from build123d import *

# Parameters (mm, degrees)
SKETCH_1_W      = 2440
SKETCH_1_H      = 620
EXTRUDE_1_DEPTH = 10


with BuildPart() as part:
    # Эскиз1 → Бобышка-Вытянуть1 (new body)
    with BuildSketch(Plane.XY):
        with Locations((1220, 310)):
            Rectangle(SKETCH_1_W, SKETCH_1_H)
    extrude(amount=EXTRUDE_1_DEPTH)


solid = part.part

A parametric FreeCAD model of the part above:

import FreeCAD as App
import Part
import Sketcher

V = App.Vector

doc = App.newDocument("Part")
params = doc.addObject("Spreadsheet::Sheet", "Params")
for row, (alias, value) in enumerate([
    ("sketch1_width", "2440 mm"),
    ("sketch1_height", "620 mm"),
    ("pad1_length", "10 mm"),
], start=1):
    params.set(f"A{row}", alias)
    params.set(f"B{row}", "=" + value)
    params.setAlias(f"B{row}", alias)

body = doc.addObject("PartDesign::Body", "Body")

# Sketch on XY plane
sketch1 = doc.addObject("Sketcher::SketchObject", "Sketch")
body.addObject(sketch1)
sketch1.AttachmentSupport = (doc.XY_Plane, [""])
sketch1.MapMode = "FlatFace"
sketch1.addGeometry([
    Part.LineSegment(V(0, 620, 0), V(0, 0, 0)),
    Part.LineSegment(V(0, 0, 0), V(2440, 0, 0)),
    Part.LineSegment(V(2440, 0, 0), V(2440, 620, 0)),
    Part.LineSegment(V(2440, 620, 0), V(0, 620, 0)),
], False)
sketch1.addConstraint([
    Sketcher.Constraint("Coincident", 0, 2, 1, 1),
    Sketcher.Constraint("Coincident", 1, 2, 2, 1),
    Sketcher.Constraint("Coincident", 2, 2, 3, 1),
    Sketcher.Constraint("Coincident", 3, 2, 0, 1),
    Sketcher.Constraint("Vertical", 0),
    Sketcher.Constraint("Horizontal", 1),
    Sketcher.Constraint("Vertical", 2),
    Sketcher.Constraint("Horizontal", 3),
    Sketcher.Constraint("Coincident", 0, 2, -1, 1),
    Sketcher.Constraint("DistanceX", 1, 1, 1, 2, 2440.0),
    Sketcher.Constraint("DistanceY", 0, 2, 0, 1, 620.0),
])
sketch1.setExpression("Constraints[9]", "Params.sketch1_width")
sketch1.setExpression("Constraints[10]", "Params.sketch1_height")
pad1 = doc.addObject("PartDesign::Pad", "Pad")
body.addObject(pad1)
pad1.Profile = sketch1
pad1.setExpression("Length", "Params.pad1_length")

doc.recompute()
